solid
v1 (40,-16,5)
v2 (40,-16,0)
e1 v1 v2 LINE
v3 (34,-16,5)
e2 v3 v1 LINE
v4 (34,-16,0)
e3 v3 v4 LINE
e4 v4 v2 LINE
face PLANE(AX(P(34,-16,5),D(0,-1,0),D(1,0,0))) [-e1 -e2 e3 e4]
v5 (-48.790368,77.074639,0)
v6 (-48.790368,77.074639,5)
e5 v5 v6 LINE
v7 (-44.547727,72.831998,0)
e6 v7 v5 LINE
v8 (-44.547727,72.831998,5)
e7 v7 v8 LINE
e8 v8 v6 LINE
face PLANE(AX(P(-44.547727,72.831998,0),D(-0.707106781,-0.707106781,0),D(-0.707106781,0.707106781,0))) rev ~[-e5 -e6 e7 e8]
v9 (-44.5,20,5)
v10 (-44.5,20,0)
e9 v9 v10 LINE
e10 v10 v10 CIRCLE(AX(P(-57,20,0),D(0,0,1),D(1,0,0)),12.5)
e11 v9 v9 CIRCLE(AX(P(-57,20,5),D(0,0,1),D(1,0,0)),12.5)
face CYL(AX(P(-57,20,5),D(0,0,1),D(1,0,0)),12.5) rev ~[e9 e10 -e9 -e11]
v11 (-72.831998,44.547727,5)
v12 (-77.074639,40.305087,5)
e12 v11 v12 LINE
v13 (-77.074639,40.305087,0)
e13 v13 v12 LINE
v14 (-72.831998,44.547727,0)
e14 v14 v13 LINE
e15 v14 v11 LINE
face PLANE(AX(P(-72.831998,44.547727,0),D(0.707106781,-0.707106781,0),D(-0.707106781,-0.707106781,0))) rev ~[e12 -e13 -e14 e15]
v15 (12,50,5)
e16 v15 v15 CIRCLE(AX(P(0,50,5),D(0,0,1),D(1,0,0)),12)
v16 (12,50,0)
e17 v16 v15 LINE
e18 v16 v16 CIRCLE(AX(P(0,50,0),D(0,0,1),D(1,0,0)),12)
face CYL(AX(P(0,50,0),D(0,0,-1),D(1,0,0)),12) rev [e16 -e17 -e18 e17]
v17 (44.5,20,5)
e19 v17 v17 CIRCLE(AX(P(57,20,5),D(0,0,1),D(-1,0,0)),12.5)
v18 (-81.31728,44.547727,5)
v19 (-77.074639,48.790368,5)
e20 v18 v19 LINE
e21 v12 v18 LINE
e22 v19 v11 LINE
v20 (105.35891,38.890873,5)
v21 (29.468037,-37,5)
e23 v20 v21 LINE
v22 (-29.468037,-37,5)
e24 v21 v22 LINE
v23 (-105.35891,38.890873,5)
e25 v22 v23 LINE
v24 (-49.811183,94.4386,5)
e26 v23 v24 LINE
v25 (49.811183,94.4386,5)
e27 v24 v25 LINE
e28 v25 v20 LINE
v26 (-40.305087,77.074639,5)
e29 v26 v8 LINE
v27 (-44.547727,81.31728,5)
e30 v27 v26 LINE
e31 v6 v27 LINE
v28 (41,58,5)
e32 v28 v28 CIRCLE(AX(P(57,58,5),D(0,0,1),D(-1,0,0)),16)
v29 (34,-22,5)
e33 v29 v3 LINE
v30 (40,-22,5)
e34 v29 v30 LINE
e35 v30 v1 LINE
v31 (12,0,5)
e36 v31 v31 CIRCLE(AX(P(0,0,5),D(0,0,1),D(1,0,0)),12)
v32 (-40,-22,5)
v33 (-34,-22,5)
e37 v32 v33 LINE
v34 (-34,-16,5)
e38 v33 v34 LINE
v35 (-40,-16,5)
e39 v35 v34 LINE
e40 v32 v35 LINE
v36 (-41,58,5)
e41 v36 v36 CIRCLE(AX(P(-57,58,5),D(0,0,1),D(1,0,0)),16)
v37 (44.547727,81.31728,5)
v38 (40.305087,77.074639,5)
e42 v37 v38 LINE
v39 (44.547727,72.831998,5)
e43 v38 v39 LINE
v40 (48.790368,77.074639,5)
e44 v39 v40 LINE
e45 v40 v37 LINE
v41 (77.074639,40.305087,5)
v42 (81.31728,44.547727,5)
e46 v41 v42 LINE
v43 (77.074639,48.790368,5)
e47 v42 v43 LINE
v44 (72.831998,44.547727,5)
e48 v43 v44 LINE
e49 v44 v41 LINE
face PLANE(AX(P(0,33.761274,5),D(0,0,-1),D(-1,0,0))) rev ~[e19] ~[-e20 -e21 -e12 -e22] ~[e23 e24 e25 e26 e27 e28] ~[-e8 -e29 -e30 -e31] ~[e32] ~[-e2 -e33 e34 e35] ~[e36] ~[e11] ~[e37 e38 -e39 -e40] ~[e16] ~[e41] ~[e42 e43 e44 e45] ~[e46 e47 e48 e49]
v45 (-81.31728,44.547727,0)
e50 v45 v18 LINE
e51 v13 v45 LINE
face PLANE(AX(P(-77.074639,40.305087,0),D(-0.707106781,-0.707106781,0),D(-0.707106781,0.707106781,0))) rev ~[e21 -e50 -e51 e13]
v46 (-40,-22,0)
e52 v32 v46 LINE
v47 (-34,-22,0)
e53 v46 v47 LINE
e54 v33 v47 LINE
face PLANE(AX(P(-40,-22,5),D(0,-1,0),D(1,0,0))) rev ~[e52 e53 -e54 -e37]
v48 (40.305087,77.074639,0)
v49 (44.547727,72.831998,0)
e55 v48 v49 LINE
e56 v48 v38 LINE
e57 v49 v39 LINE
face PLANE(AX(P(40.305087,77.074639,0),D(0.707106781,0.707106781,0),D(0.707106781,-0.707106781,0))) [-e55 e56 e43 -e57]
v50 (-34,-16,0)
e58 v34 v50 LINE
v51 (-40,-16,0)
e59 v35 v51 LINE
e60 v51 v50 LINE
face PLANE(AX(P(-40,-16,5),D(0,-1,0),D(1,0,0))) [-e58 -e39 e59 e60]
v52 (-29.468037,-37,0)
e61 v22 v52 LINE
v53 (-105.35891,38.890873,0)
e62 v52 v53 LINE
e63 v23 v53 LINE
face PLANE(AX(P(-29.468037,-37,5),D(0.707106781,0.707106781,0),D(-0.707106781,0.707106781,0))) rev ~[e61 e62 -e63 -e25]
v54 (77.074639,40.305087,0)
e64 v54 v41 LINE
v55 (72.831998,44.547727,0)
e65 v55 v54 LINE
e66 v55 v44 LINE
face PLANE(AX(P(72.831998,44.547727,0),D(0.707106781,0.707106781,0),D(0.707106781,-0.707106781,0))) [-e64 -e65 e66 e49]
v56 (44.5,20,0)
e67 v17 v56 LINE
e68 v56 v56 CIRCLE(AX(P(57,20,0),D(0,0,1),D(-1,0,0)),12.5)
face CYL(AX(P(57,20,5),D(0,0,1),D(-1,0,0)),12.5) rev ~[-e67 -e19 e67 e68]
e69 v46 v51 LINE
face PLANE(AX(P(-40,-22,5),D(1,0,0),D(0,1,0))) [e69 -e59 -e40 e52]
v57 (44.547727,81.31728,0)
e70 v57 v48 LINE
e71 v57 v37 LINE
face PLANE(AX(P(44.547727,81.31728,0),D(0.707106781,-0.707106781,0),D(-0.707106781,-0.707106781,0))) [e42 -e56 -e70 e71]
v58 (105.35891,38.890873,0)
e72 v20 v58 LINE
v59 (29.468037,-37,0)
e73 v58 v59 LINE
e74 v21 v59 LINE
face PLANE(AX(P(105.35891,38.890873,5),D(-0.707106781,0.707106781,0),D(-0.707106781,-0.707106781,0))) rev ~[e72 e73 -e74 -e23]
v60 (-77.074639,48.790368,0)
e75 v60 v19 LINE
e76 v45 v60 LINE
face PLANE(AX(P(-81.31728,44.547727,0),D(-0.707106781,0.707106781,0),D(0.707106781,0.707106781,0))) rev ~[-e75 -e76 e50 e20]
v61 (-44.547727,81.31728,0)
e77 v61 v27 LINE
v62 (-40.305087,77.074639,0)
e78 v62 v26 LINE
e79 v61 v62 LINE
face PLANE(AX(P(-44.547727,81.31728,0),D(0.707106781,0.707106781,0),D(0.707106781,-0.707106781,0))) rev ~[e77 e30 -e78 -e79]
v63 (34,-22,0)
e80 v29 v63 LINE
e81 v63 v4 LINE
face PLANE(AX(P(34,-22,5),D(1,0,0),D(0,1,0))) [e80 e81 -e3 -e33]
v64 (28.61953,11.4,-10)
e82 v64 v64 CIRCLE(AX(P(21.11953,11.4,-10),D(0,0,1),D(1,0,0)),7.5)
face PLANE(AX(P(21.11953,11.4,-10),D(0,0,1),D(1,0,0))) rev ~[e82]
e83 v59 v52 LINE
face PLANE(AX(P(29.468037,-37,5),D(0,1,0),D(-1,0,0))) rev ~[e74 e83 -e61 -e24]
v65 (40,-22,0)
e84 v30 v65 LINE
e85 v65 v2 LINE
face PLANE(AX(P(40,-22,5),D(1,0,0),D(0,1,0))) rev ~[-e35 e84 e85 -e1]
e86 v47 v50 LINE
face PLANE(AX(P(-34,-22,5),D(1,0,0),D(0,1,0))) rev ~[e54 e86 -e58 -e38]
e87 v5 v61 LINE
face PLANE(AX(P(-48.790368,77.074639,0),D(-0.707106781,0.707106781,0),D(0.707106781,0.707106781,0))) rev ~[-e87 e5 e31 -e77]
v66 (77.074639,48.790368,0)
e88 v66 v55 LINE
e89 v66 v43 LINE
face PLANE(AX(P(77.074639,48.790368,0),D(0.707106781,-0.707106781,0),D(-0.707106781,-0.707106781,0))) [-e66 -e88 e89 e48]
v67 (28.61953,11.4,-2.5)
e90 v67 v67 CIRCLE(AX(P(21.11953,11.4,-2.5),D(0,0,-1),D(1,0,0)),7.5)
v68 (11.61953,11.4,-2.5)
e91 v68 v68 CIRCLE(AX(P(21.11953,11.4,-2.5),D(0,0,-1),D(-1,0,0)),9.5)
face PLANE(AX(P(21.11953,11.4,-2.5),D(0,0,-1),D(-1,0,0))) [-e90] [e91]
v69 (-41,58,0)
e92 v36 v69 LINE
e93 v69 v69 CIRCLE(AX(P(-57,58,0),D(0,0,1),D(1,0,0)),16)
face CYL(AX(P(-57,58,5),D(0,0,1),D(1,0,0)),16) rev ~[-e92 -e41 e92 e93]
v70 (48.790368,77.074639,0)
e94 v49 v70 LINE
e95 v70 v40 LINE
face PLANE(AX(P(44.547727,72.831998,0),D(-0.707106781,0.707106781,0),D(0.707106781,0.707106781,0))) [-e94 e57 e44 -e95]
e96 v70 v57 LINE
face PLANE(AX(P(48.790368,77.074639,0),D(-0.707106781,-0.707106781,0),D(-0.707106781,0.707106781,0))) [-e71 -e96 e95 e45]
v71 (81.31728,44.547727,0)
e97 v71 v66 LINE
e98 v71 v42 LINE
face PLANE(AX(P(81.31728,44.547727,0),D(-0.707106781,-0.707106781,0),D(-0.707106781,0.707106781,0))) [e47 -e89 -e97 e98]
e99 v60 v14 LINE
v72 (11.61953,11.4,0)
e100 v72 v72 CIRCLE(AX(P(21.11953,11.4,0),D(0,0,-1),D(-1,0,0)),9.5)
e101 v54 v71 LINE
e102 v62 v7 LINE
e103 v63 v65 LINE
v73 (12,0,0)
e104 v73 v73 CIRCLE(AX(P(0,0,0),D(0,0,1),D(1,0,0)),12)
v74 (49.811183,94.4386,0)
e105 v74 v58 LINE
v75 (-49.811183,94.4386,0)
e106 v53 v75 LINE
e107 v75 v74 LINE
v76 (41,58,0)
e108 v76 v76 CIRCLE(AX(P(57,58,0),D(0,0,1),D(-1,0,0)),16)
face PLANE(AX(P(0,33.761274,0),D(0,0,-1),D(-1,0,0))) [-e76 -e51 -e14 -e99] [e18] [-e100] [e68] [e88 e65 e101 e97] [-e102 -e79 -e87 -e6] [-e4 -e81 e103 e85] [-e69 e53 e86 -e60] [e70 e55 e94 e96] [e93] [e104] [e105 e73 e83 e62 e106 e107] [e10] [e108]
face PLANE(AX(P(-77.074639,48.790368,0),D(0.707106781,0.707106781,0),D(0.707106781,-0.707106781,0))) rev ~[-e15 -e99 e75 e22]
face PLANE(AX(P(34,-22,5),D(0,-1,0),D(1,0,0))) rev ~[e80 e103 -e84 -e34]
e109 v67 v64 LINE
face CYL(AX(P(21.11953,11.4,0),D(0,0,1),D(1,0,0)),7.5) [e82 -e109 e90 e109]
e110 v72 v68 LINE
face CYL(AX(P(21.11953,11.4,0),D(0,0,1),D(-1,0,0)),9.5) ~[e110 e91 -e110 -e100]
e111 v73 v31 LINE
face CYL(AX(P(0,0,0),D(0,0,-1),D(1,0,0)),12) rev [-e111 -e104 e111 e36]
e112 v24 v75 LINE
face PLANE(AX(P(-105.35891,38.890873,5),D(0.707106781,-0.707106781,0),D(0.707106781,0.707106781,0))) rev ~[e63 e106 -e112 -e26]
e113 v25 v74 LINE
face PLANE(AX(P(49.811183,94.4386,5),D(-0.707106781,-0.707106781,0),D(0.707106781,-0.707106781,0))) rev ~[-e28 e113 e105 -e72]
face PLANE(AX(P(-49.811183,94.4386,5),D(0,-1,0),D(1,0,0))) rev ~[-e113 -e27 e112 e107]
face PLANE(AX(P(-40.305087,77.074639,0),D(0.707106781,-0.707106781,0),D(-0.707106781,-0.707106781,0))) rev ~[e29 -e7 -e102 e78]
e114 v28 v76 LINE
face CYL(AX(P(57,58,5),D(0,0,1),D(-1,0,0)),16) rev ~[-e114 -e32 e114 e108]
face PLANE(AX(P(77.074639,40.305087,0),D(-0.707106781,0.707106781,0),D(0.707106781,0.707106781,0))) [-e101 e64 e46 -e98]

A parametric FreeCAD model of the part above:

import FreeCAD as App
import Part
import Sketcher
from FreeCAD import Vector
Q = App.Units.Quantity

doc = App.newDocument("Part")
body = doc.addObject("PartDesign::Body", "Body")

sketch1 = doc.addObject("Sketcher::SketchObject", "Sketch")
body.addObject(sketch1)
sketch1.AttachmentSupport = (doc.XY_Plane, [""])
sketch1.MapMode = "FlatFace"
sketch1.addGeometry([
    Part.LineSegment(Vector(-44, 83, 0), Vector(-78, 49, 0)),
    Part.LineSegment(Vector(-78, 49, 0), Vector(-88, 39, 0)),
    Part.LineSegment(Vector(-88, 39, 0), Vector(-27, -22, 0)),
    Part.LineSegment(Vector(-27, -22, 0), Vector(27, -22, 0)),
    Part.LineSegment(Vector(27, -22, 0), Vector(88, 39, 0)),
    Part.LineSegment(Vector(88, 39, 0), Vector(78, 49, 0)),
    Part.LineSegment(Vector(78, 49, 0), Vector(44, 83, 0)),
    Part.LineSegment(Vector(44, 83, 0), Vector(-44, 83, 0)),
    Part.Circle(Vector(0, 0, 0), Vector(0, 0, 1), 12),
    Part.LineSegment(Vector(73, 45, 0), Vector(77, 49, 0)),
    Part.LineSegment(Vector(77, 49, 0), Vector(81, 45, 0)),
    Part.LineSegment(Vector(81, 45, 0), Vector(77, 40, 0)),
    Part.LineSegment(Vector(77, 40, 0), Vector(73, 45, 0)),
    Part.LineSegment(Vector(40, 77, 0), Vector(45, 81, 0)),
    Part.LineSegment(Vector(45, 81, 0), Vector(49, 77, 0)),
    Part.LineSegment(Vector(49, 77, 0), Vector(45, 73, 0)),
    Part.LineSegment(Vector(45, 73, 0), Vector(40, 77, 0)),
    Part.Circle(Vector(0, 50, 0), Vector(0, 0, 1), 12),
    Part.LineSegment(Vector(-81, 45, 0), Vector(-77, 49, 0)),
    Part.LineSegment(Vector(-77, 49, 0), Vector(-73, 45, 0)),
    Part.LineSegment(Vector(-73, 45, 0), Vector(-77, 40, 0)),
    Part.LineSegment(Vector(-77, 40, 0), Vector(-81, 45, 0)),
    Part.LineSegment(Vector(-49, 77, 0), Vector(-45, 81, 0)),
    Part.LineSegment(Vector(-45, 81, 0), Vector(-40, 77, 0)),
    Part.LineSegment(Vector(-40, 77, 0), Vector(-45, 73, 0)),
    Part.LineSegment(Vector(-45, 73, 0), Vector(-49, 77, 0)),
], False)
sketch1.addConstraint([
    Sketcher.Constraint("Coincident", 0, 2, 1, 1),
    Sketcher.Constraint("Coincident", 1, 2, 2, 1),
    Sketcher.Constraint("Coincident", 2, 2, 3, 1),
    Sketcher.Constraint("Coincident", 3, 2, 4, 1),
    Sketcher.Constraint("Coincident", 4, 2, 5, 1),
    Sketcher.Constraint("Coincident", 5, 2, 6, 1),
    Sketcher.Constraint("Coincident", 6, 2, 7, 1),
    Sketcher.Constraint("Coincident", 7, 2, 0, 1),
    Sketcher.Constraint("Coincident", 9, 2, 10, 1),
    Sketcher.Constraint("Coincident", 10, 2, 11, 1),
    Sketcher.Constraint("Coincident", 11, 2, 12, 1),
    Sketcher.Constraint("Coincident", 12, 2, 9, 1),
    Sketcher.Constraint("Coincident", 13, 2, 14, 1),
    Sketcher.Constraint("Coincident", 14, 2, 15, 1),
    Sketcher.Constraint("Coincident", 15, 2, 16, 1),
    Sketcher.Constraint("Coincident", 16, 2, 13, 1),
    Sketcher.Constraint("Coincident", 18, 2, 19, 1),
    Sketcher.Constraint("Coincident", 19, 2, 20, 1),
    Sketcher.Constraint("Coincident", 20, 2, 21, 1),
    Sketcher.Constraint("Coincident", 21, 2, 18, 1),
    Sketcher.Constraint("Coincident", 22, 2, 23, 1),
    Sketcher.Constraint("Coincident", 23, 2, 24, 1),
    Sketcher.Constraint("Coincident", 24, 2, 25, 1),
    Sketcher.Constraint("Coincident", 25, 2, 22, 1),
    Sketcher.Constraint("Horizontal", 3),
    Sketcher.Constraint("Horizontal", 7),
    Sketcher.Constraint("Coincident", 8, 3, -1, 1),
    Sketcher.Constraint("Equal", 8, 17),
    Sketcher.Constraint("Symmetric", 1, 2, 4, 2, -2),
    Sketcher.Constraint("Symmetric", 0, 2, 5, 2, -2),
    Sketcher.Constraint("Symmetric", 9, 2, 18, 2, -2),
    Sketcher.Constraint("Symmetric", 12, 2, 19, 2, -2),
    Sketcher.Constraint("Symmetric", 11, 2, 20, 2, -2),
    Sketcher.Constraint("Symmetric", 10, 2, 21, 2, -2),
    Sketcher.Constraint("Symmetric", 13, 2, 22, 2, -2),
    Sketcher.Constraint("Symmetric", 16, 2, 23, 2, -2),
    Sketcher.Constraint("Symmetric", 15, 2, 24, 2, -2),
    Sketcher.Constraint("Symmetric", 14, 2, 25, 2, -2),
    Sketcher.Constraint("PointOnObject", 17, 3, -2),
    Sketcher.Constraint("Parallel", 0, 1),
    Sketcher.Constraint("Perpendicular", 1, 2),
    Sketcher.Constraint("Perpendicular", 2, 4),
    Sketcher.Constraint("Perpendicular", 4, 5),
    Sketcher.Constraint("Parallel", 5, 6),
    Sketcher.Constraint("Perpendicular", 6, 9),
    Sketcher.Constraint("Perpendicular", 9, 10),
    Sketcher.Constraint("Perpendicular", 10, 11),
    Sketcher.Constraint("Perpendicular", 11, 12),
    Sketcher.Constraint("Perpendicular", 12, 13),
    Sketcher.Constraint("Perpendicular", 13, 14),
    Sketcher.Constraint("Perpendicular", 14, 15),
    Sketcher.Constraint("Perpendicular", 15, 16),
    Sketcher.Constraint("Horizontal", 10, 2, 12, 2),
    Sketcher.Constraint("Horizontal", 14, 2, 16, 2),
    Sketcher.Constraint("Equal", 12, 13),
    Sketcher.Constraint("Diameter", 8, Q("24 mm")),
    Sketcher.Constraint("Distance", 0, Q("48 mm")),
    Sketcher.Constraint("Distance", 1, Q("15 mm")),
    Sketcher.Constraint("Distance", 9, Q("6 mm")),
    Sketcher.Constraint("DistanceY", -1, 1, 17, 3, Q("50 mm")),
    Sketcher.Constraint("DistanceY", 2, 2, -1, 1, Q("22 mm")),
    Sketcher.Constraint("DistanceX", -1, 1, 12, 2, Q("72.831998 mm")),
    Sketcher.Constraint("DistanceY", -1, 1, 15, 2, Q("72.831998 mm")),
    Sketcher.Constraint("Distance", 2, Q("86.112698 mm")),
    Sketcher.Constraint("DistanceX", 3, 1, 3, 2, Q("54.994949 mm")),
    Sketcher.Constraint("DistanceY", 11, 2, 5, 2, Q("9.192388 mm")),
    Sketcher.Constraint("DistanceX", 13, 2, 9, 2, Q("32.526912 mm")),
])
pad1 = doc.addObject("PartDesign::Pad", "Pad")
body.addObject(pad1)
pad1.Profile = sketch1
pad1.Length = 5

sketch2 = doc.addObject("Sketcher::SketchObject", "Sketch001")
body.addObject(sketch2)
sketch2.AttachmentSupport = (doc.XY_Plane, [""])
sketch2.MapMode = "FlatFace"
sketch2.AttachmentOffset = App.Placement(Vector(0, 0, 5), App.Rotation())
sketch2.addGeometry([
    Part.LineSegment(Vector(-50, 94, 0), Vector(-105, 39, 0)),
    Part.LineSegment(Vector(-105, 39, 0), Vector(-29, -37, 0)),
    Part.LineSegment(Vector(-29, -37, 0), Vector(29, -37, 0)),
    Part.LineSegment(Vector(29, -37, 0), Vector(105, 39, 0)),
    Part.LineSegment(Vector(105, 39, 0), Vector(50, 94, 0)),
    Part.LineSegment(Vector(50, 94, 0), Vector(-50, 94, 0)),
    Part.LineSegment(Vector(-44, 83, 0), Vector(44, 83, 0)),
    Part.LineSegment(Vector(44, 83, 0), Vector(88, 39, 0)),
    Part.LineSegment(Vector(88, 39, 0), Vector(27, -22, 0)),
    Part.LineSegment(Vector(27, -22, 0), Vector(-27, -22, 0)),
    Part.LineSegment(Vector(-27, -22, 0), Vector(-88, 39, 0)),
    Part.LineSegment(Vector(-88, 39, 0), Vector(-44, 83, 0)),
], False)
sketch2.addConstraint([
    Sketcher.Constraint("Coincident", 0, 2, 1, 1),
    Sketcher.Constraint("Coincident", 1, 2, 2, 1),
    Sketcher.Constraint("Coincident", 2, 2, 3, 1),
    Sketcher.Constraint("Coincident", 3, 2, 4, 1),
    Sketcher.Constraint("Coincident", 4, 2, 5, 1),
    Sketcher.Constraint("Coincident", 5, 2, 0, 1),
    Sketcher.Constraint("Coincident", 6, 2, 7, 1),
    Sketcher.Constraint("Coincident", 7, 2, 8, 1),
    Sketcher.Constraint("Coincident", 8, 2, 9, 1),
    Sketcher.Constraint("Coincident", 9, 2, 10, 1),
    Sketcher.Constraint("Coincident", 10, 2, 11, 1),
    Sketcher.Constraint("Coincident", 11, 2, 6, 1),
    Sketcher.Constraint("Horizontal", 2),
    Sketcher.Constraint("Horizontal", 5),
    Sketcher.Constraint("Horizontal", 6),
    Sketcher.Constraint("Horizontal", 9),
    Sketcher.Constraint("Symmetric", 0, 2, 3, 2, -2),
    Sketcher.Constraint("Symmetric", 7, 2, 10, 2, -2),
    Sketcher.Constraint("Perpendicular", 0, 1),
    Sketcher.Constraint("Perpendicular", 1, 3),
    Sketcher.Constraint("Perpendicular", 3, 4),
    Sketcher.Constraint("Parallel", 4, 7),
    Sketcher.Constraint("Perpendicular", 7, 8),
    Sketcher.Constraint("Perpendicular", 8, 10),
    Sketcher.Constraint("Perpendicular", 10, 11),
    Sketcher.Constraint("Horizontal", 3, 2, 7, 2),
    Sketcher.Constraint("Equal", 1, 3),
    Sketcher.Constraint("Distance", 7, Q("63 mm")),
    Sketcher.Constraint("DistanceY", 1, 2, -1, 1, Q("37 mm")),
    Sketcher.Constraint("DistanceY", 8, 2, -1, 1, Q("22 mm")),
    Sketcher.Constraint("DistanceY", 6, 2, 4, 2, Q("11 mm")),
    Sketcher.Constraint("Distance", 1, Q("107.325902 mm")),
    Sketcher.Constraint("DistanceX", 6, 1, 6, 2, Q("87.681241 mm")),
    Sketcher.Constraint("DistanceX", 2, 1, 2, 2, Q("58.936075 mm")),
])
pad2 = doc.addObject("PartDesign::Pad", "Pad001")
body.addObject(pad2)
pad2.Profile = sketch2
pad2.Length = 5
pad2.Reversed = True

sketch3 = doc.addObject("Sketcher::SketchObject", "Sketch002")
body.addObject(sketch3)
sketch3.AttachmentSupport = (doc.XY_Plane, [""])
sketch3.MapMode = "FlatFace"
sketch3.AttachmentOffset = App.Placement(Vector(0, 0, 5), App.Rotation())
sketch3.addGeometry([
    Part.Circle(Vector(-57, 58, 0), Vector(0, 0, 1), 16),
    Part.Circle(Vector(-57, 20, 0), Vector(0, 0, 1), 12),
    Part.Circle(Vector(57, 20, 0), Vector(0, 0, 1), 12),
    Part.Circle(Vector(57, 58, 0), Vector(0, 0, 1), 16),
    Part.LineSegment(Vector(-40, -16, 0), Vector(-40, -22, 0)),
    Part.LineSegment(Vector(-40, -22, 0), Vector(-34, -22, 0)),
    Part.LineSegment(Vector(-34, -22, 0), Vector(-34, -16, 0)),
    Part.LineSegment(Vector(-34, -16, 0), Vector(-40, -16, 0)),
    Part.LineSegment(Vector(34, -16, 0), Vector(34, -22, 0)),
    Part.LineSegment(Vector(34, -22, 0), Vector(40, -22, 0)),
    Part.LineSegment(Vector(40, -22, 0), Vector(40, -16, 0)),
    Part.LineSegment(Vector(40, -16, 0), Vector(34, -16, 0)),
], False)
sketch3.addConstraint([
    Sketcher.Constraint("Coincident", 4, 2, 5, 1),
    Sketcher.Constraint("Coincident", 5, 2, 6, 1),
    Sketcher.Constraint("Coincident", 6, 2, 7, 1),
    Sketcher.Constraint("Coincident", 7, 2, 4, 1),
    Sketcher.Constraint("Coincident", 8, 2, 9, 1),
    Sketcher.Constraint("Coincident", 9, 2, 10, 1),
    Sketcher.Constraint("Coincident", 10, 2, 11, 1),
    Sketcher.Constraint("Coincident", 11, 2, 8, 1),
    Sketcher.Constraint("Vertical", 4),
    Sketcher.Constraint("Horizontal", 5),
    Sketcher.Constraint("Vertical", 6),
    Sketcher.Constraint("Horizontal", 7),
    Sketcher.Constraint("Vertical", 8),
    Sketcher.Constraint("Horizontal", 9),
    Sketcher.Constraint("Vertical", 10),
    Sketcher.Constraint("Horizontal", 11),
    Sketcher.Constraint("Equal", 1, 2),
    Sketcher.Constraint("Equal", 0, 3),
    Sketcher.Constraint("Symmetric", 1, 3, 2, 3, -2),
    Sketcher.Constraint("Symmetric", 0, 3, 3, 3, -2),
    Sketcher.Constraint("Symmetric", 5, 2, 8, 2, -2),
    Sketcher.Constraint("Symmetric", 7, 2, 10, 2, -2),
    Sketcher.Constraint("Vertical", 0, 3, 1, 3),
    Sketcher.Constraint("Equal", 11, 4),
    Sketcher.Constraint("Diameter", 0, Q("32 mm")),
    Sketcher.Constraint("Diameter", 1, Q("25 mm")),
    Sketcher.Constraint("DistanceX", 5, 1, 5, 2, Q("6 mm")),
    Sketcher.Constraint("DistanceX", 0, 3, -1, 1, Q("57 mm")),
    Sketcher.Constraint("DistanceY", -1, 1, 0, 3, Q("58 mm")),
    Sketcher.Constraint("DistanceY", -1, 1, 1, 3, Q("20 mm")),
    Sketcher.Constraint("DistanceX", 4, 2, -1, 1, Q("40 mm")),
    Sketcher.Constraint("DistanceY", 4, 2, -1, 1, Q("22 mm")),
])
pocket1 = doc.addObject("PartDesign::Pocket", "Pocket")
body.addObject(pocket1)
pocket1.Profile = sketch3
pocket1.Length = 5

sketch4 = doc.addObject("Sketcher::SketchObject", "Sketch003")
body.addObject(sketch4)
sketch4.AttachmentSupport = (doc.XY_Plane, [""])
sketch4.MapMode = "FlatFace"
sketch4.addGeometry(Part.Circle(Vector(21, 11, 0), Vector(0, 0, 1), 8), False)
sketch4.addConstraint([
    Sketcher.Constraint("Diameter", 0, Q("15 mm")),
    Sketcher.Constraint("DistanceY", -1, 1, 0, 3, Q("11.4 mm")),
    Sketcher.Constraint("DistanceX", -1, 1, 0, 3, Q("21.11953 mm")),
])
pad3 = doc.addObject("PartDesign::Pad", "Pad002")
body.addObject(pad3)
pad3.Profile = sketch4
pad3.Length = 10
pad3.Reversed = True

sketch5 = doc.addObject("Sketcher::SketchObject", "Sketch004")
body.addObject(sketch5)
sketch5.AttachmentSupport = (doc.XY_Plane, [""])
sketch5.MapMode = "FlatFace"
sketch5.addGeometry([
    Part.Circle(Vector(21, 11, 0), Vector(0, 0, 1), 10),
    Part.Circle(Vector(21, 11, 0), Vector(0, 0, 1), 8),
], False)
sketch5.addConstraint([
    Sketcher.Constraint("Coincident", 1, 3, 0, 3),
    Sketcher.Constraint("Diameter", 0, Q("19 mm")),
    Sketcher.Constraint("Diameter", 1, Q("15 mm")),
    Sketcher.Constraint("DistanceY", -1, 1, 0, 3, Q("11.4 mm")),
    Sketcher.Constraint("DistanceX", -1, 1, 0, 3, Q("21.11953 mm")),
])
pad4 = doc.addObject("PartDesign::Pad", "Pad003")
body.addObject(pad4)
pad4.Profile = sketch5
pad4.Length = 2.5
pad4.Reversed = True

doc.recompute()
